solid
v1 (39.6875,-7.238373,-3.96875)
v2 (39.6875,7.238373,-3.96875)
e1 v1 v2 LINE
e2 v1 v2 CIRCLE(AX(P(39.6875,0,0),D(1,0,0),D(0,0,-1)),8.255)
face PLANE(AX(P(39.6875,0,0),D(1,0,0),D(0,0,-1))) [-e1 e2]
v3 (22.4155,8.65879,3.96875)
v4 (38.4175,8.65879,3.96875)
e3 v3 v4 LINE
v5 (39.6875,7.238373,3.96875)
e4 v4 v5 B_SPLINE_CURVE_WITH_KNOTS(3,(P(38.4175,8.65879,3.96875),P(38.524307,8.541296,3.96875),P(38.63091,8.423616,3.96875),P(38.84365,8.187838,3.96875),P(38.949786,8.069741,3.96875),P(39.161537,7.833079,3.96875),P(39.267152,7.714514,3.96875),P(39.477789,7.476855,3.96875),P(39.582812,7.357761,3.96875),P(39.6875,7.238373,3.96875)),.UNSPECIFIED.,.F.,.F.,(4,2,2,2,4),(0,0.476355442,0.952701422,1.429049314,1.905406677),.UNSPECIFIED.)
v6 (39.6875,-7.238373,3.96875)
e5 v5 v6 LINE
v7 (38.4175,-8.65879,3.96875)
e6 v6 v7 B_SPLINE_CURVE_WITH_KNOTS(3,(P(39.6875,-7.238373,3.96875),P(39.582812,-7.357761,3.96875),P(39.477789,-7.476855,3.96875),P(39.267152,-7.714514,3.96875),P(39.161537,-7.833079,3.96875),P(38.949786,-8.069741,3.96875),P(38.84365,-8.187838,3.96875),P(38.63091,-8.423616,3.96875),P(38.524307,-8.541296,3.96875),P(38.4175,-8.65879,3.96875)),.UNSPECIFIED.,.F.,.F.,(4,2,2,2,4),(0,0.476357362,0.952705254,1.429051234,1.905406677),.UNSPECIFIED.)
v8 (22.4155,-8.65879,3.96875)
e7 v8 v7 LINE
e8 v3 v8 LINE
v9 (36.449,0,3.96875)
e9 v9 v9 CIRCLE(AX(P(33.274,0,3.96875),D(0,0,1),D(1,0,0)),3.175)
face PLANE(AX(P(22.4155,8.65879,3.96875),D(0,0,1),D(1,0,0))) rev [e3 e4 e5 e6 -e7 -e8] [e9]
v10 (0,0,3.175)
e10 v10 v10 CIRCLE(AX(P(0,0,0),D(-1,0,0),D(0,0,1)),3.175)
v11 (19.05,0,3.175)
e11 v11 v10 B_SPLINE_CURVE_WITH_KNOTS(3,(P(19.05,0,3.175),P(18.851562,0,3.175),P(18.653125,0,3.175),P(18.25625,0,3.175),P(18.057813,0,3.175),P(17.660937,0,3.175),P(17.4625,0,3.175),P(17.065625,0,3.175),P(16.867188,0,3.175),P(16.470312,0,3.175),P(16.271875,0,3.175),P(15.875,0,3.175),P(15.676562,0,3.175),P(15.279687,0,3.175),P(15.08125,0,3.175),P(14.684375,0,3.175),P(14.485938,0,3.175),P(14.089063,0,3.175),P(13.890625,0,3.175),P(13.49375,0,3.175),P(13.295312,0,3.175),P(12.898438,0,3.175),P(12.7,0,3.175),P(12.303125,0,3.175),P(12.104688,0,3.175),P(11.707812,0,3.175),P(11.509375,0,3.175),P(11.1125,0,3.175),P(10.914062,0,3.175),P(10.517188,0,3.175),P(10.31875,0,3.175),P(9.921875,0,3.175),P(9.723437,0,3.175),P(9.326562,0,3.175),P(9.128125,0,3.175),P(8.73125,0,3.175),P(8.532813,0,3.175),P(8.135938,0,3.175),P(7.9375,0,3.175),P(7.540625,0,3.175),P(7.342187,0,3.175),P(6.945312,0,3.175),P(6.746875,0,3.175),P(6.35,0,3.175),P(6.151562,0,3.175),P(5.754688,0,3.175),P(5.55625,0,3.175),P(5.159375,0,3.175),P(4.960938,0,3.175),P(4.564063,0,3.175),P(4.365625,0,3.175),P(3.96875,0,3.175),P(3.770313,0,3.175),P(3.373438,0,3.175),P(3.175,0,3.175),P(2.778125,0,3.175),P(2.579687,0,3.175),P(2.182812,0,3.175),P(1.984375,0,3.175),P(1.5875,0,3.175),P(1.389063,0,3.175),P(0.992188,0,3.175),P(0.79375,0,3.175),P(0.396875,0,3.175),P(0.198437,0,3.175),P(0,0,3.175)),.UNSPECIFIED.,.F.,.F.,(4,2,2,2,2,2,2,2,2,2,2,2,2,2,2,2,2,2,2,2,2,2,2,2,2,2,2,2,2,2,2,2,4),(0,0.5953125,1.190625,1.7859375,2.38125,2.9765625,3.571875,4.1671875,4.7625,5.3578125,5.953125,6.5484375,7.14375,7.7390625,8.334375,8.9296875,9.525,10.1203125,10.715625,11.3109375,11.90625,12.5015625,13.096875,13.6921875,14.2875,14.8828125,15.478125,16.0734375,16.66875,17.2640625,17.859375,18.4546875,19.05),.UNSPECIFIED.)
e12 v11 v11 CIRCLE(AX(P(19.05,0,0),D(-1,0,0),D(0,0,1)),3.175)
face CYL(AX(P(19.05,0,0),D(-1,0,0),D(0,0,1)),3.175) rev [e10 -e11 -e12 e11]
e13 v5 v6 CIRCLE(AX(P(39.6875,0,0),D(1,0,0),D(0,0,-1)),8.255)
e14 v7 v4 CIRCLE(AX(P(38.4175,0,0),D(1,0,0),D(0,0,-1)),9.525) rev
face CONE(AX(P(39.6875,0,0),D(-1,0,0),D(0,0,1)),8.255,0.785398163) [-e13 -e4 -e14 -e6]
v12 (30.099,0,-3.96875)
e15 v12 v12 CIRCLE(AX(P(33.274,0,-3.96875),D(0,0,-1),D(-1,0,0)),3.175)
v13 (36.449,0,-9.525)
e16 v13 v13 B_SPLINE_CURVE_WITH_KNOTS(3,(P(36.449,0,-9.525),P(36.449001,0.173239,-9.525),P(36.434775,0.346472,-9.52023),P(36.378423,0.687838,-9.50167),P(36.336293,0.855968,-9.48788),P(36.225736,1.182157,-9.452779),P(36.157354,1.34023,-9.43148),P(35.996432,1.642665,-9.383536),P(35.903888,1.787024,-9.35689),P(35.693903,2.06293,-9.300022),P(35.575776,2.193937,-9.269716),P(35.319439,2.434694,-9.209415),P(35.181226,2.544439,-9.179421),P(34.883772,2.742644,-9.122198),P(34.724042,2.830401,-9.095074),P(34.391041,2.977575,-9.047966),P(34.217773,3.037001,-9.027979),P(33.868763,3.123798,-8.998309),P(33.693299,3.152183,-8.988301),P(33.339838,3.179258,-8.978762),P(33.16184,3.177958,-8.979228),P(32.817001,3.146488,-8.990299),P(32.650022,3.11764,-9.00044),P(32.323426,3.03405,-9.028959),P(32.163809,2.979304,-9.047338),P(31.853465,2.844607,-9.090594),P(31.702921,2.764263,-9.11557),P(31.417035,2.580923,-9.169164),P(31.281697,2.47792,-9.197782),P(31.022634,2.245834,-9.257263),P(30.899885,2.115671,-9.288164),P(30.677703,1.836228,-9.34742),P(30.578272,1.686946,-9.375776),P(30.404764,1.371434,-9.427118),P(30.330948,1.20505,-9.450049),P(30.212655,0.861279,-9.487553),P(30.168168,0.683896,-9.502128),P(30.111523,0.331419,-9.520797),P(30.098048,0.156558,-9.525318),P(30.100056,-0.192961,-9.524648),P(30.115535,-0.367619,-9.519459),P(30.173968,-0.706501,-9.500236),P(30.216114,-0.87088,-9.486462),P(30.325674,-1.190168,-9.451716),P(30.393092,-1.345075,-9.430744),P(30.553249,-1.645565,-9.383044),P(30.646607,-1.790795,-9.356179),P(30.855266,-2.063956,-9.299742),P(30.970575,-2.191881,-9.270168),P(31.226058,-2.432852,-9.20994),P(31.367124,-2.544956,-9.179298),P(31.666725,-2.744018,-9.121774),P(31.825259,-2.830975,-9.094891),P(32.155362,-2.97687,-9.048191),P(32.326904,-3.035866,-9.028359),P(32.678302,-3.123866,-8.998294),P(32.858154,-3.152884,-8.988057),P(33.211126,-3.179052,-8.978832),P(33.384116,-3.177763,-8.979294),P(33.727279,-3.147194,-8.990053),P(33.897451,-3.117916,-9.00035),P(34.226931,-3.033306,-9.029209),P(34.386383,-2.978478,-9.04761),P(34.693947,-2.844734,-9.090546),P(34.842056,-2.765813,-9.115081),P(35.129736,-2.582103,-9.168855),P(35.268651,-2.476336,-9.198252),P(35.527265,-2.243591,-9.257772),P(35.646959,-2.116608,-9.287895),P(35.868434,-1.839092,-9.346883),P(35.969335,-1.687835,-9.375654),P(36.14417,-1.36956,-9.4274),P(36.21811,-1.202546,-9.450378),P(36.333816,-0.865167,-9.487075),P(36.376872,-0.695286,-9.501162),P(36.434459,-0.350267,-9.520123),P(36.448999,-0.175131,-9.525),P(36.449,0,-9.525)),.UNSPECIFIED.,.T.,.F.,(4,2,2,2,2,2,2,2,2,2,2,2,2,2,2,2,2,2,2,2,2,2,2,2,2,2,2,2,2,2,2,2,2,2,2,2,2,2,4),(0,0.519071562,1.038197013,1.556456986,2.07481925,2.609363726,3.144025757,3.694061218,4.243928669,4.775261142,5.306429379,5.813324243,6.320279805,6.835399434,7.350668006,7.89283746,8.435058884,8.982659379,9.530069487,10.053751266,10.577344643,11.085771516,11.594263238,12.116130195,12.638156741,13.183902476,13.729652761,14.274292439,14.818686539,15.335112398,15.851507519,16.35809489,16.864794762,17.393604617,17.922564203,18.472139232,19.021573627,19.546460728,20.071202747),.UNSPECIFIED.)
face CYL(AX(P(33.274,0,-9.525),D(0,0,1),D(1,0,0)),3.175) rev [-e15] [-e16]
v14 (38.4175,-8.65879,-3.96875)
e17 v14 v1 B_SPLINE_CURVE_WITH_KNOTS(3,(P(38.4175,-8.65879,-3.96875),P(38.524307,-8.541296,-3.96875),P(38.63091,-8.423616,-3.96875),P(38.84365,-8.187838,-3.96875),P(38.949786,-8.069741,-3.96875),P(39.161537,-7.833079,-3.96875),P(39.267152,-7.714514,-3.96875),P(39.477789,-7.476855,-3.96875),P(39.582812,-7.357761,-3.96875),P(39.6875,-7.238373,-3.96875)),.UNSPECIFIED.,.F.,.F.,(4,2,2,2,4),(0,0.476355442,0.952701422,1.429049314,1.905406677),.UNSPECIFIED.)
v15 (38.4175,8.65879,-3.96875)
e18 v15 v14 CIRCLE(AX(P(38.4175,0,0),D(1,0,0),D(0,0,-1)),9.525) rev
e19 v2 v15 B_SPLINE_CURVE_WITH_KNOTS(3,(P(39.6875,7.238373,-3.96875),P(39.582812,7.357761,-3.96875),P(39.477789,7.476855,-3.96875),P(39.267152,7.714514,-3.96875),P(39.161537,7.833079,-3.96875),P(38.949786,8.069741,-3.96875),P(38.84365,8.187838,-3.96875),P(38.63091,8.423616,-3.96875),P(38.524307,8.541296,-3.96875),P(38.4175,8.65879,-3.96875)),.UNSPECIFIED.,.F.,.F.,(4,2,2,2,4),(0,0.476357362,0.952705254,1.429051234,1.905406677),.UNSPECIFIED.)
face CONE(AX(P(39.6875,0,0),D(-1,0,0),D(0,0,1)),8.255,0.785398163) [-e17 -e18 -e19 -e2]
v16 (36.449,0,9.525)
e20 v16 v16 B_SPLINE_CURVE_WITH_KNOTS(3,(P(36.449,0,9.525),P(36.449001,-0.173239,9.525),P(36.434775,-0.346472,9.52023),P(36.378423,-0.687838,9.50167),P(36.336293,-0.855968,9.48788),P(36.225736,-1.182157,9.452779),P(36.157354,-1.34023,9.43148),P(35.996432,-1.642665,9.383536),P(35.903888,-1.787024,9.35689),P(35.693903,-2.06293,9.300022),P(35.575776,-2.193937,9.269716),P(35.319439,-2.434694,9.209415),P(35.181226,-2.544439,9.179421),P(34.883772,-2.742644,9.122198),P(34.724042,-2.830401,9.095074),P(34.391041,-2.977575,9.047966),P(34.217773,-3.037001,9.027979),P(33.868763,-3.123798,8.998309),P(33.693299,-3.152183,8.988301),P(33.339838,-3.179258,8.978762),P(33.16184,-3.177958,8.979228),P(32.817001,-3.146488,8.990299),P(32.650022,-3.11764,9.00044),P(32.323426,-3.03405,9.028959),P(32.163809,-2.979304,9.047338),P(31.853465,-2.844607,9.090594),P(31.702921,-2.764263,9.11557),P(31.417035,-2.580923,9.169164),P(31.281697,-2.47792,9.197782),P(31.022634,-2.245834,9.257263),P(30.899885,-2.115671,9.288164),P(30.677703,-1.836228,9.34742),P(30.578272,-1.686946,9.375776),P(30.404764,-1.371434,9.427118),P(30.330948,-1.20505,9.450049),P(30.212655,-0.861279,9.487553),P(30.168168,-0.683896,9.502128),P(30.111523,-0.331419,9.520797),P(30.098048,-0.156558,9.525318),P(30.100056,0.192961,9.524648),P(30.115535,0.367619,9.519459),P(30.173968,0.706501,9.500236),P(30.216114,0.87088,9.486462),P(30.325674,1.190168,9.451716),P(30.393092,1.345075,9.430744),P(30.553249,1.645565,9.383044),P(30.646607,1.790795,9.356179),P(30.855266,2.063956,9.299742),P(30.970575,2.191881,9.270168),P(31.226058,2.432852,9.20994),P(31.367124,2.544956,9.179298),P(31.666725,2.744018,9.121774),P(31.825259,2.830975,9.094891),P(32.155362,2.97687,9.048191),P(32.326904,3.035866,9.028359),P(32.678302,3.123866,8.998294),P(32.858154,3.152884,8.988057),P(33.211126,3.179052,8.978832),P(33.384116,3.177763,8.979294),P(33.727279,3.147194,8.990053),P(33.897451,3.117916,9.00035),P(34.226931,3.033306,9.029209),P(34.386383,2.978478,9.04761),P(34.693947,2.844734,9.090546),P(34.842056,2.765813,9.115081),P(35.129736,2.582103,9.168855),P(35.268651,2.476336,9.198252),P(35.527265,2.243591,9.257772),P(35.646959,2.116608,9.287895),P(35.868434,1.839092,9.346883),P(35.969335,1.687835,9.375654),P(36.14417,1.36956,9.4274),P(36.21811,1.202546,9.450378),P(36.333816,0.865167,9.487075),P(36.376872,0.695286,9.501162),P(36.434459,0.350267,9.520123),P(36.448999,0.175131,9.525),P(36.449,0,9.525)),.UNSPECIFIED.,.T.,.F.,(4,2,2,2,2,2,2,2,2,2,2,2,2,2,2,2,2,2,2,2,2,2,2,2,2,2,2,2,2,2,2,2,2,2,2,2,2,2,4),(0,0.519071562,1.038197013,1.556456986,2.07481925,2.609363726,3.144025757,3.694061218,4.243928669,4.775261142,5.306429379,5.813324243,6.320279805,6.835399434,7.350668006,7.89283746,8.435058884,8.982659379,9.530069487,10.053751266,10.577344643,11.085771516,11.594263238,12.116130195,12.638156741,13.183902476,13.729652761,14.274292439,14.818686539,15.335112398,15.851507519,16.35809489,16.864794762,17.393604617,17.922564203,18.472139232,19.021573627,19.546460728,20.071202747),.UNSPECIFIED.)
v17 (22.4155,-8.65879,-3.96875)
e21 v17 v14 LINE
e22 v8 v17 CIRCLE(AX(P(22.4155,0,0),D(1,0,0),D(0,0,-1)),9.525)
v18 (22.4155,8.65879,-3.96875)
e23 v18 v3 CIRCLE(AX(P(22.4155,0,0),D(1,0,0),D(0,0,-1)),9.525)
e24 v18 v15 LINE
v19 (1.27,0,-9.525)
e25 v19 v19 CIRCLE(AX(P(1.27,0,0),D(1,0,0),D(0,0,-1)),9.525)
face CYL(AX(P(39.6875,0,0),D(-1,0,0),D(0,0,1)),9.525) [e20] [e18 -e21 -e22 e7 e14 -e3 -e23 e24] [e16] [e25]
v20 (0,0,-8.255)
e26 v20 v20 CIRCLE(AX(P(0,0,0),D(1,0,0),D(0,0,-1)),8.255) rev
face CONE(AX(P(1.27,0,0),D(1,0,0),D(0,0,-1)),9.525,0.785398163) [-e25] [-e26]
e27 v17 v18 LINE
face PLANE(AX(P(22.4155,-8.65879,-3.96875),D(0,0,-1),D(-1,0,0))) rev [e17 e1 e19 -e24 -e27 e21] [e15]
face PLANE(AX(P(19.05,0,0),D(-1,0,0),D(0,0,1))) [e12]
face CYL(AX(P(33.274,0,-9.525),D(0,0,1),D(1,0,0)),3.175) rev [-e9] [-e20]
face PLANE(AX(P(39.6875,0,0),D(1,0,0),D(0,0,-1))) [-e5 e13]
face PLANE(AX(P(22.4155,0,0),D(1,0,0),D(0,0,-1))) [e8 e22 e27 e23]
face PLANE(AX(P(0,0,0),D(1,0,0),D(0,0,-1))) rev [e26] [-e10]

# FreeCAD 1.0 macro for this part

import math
import FreeCAD as App
import Part
import Sketcher

V = App.Vector
Q = App.Units.Quantity


def edges_at(feature, points):
    """Names of the edges that pass closest to the given points."""
    edges = feature.Shape.Edges
    near = lambda p: min(range(len(edges)), key=lambda i: edges[i].distToShape(Part.Vertex(*p))[0])
    return sorted({f"Edge{near(p) + 1}" for p in points})

doc = App.newDocument("Part")
body = doc.addObject("PartDesign::Body", "Body")

sketch1 = doc.addObject("Sketcher::SketchObject", "Sketch")
body.addObject(sketch1)
sketch1.AttachmentSupport = (doc.YZ_Plane, [""])
sketch1.MapMode = "FlatFace"
sketch1.addGeometry(Part.Circle(V(0, 0, 0), V(0, 0, 1), 10), False)
sketch1.addConstraint(Sketcher.Constraint("Coincident", 0, 3, -1, 1))
sketch1.addConstraint(Sketcher.Constraint("Diameter", 0, Q("0.75 in")))
pad1 = doc.addObject("PartDesign::Pad", "Pad")
body.addObject(pad1)
pad1.Profile = sketch1
pad1.Length = Q("1.5625 in")

sketch2 = doc.addObject("Sketcher::SketchObject", "Sketch001")
body.addObject(sketch2)
sketch2.AttachmentSupport = (doc.YZ_Plane, [""])
sketch2.MapMode = "FlatFace"
sketch2.AttachmentOffset = App.Placement(V(0, 0, 0.8825 * 25.4), App.Rotation())
sketch2.addGeometry(Part.LineSegment(V(9, 4, 0), V(-9, 4, 0)), False)
sketch2.addGeometry(Part.ArcOfCircle(Part.Circle(V(0, 0, 0), V(0, 0, 1), 10), math.radians(155), math.radians(205)), False)
sketch2.addGeometry(Part.LineSegment(V(-9, -4, 0), V(9, -4, 0)), False)
sketch2.addGeometry(Part.ArcOfCircle(Part.Circle(V(0, 0, 0), V(0, 0, 1), 10), math.radians(-25), math.radians(25)), False)
sketch2.addConstraint(Sketcher.Constraint("Coincident", 0, 2, 1, 1))
sketch2.addConstraint(Sketcher.Constraint("Coincident", 1, 2, 2, 1))
sketch2.addConstraint(Sketcher.Constraint("Coincident", 2, 2, 3, 1))
sketch2.addConstraint(Sketcher.Constraint("Coincident", 3, 2, 0, 1))
sketch2.addConstraint(Sketcher.Constraint("Horizontal", 0))
sketch2.addConstraint(Sketcher.Constraint("Horizontal", 2))
sketch2.addConstraint(Sketcher.Constraint("Coincident", 1, 3, -1, 1))
sketch2.addConstraint(Sketcher.Constraint("Coincident", 3, 3, -1, 1))
sketch2.addConstraint(Sketcher.Constraint("Equal", 1, 3))
sketch2.addConstraint(Sketcher.Constraint("Vertical", 0, 2, 1, 2))
sketch2.addConstraint(Sketcher.Constraint("Radius", 1, Q("0.375 in")))
sketch2.addConstraint(Sketcher.Constraint("DistanceY", -1, 1, 0, 2, Q("0.15625 in")))
pocket1 = doc.addObject("PartDesign::Pocket", "Pocket")
body.addObject(pocket1)
pocket1.Profile = sketch2
pocket1.Length = Q("0.68 in")
pocket1.Reversed = True

sketch3 = doc.addObject("Sketcher::SketchObject", "Sketch002")
body.addObject(sketch3)
sketch3.AttachmentSupport = (doc.XY_Plane, [""])
sketch3.MapMode = "FlatFace"
sketch3.addGeometry(Part.Circle(V(33.3, 0, 0), V(0, 0, 1), 3.2), False)
sketch3.addConstraint(Sketcher.Constraint("PointOnObject", 0, 3, -1))
sketch3.addConstraint(Sketcher.Constraint("Diameter", 0, Q("0.25 in")))
sketch3.addConstraint(Sketcher.Constraint("DistanceX", -1, 1, 0, 3, Q("1.31 in")))
pocket2 = doc.addObject("PartDesign::Pocket", "Pocket001")
body.addObject(pocket2)
pocket2.Profile = sketch3
pocket2.Type = "ThroughAll"
pocket2.Midplane = True
doc.recompute()

chamfer = doc.addObject("PartDesign::Chamfer", "Chamfer")
body.addObject(chamfer)
chamfer.Base = (pocket2, edges_at(pocket2, [(0, 0, -9.525), (39.688, -5.144, 8.016), (39.688, 0, -9.525)]))
chamfer.Size = Q("0.05 in")

sketch4 = doc.addObject("Sketcher::SketchObject", "Sketch003")
body.addObject(sketch4)
sketch4.AttachmentSupport = (doc.YZ_Plane, [""])
sketch4.MapMode = "FlatFace"
sketch4.addGeometry(Part.Circle(V(0, 0, 0), V(0, 0, 1), 3.2), False)
sketch4.addConstraint(Sketcher.Constraint("Coincident", 0, 3, -1, 1))
sketch4.addConstraint(Sketcher.Constraint("Diameter", 0, Q("0.25 in")))
pocket3 = doc.addObject("PartDesign::Pocket", "Pocket002")
body.addObject(pocket3)
pocket3.Profile = sketch4
pocket3.Length = Q("0.75 in")
pocket3.Reversed = True

doc.recompute()
